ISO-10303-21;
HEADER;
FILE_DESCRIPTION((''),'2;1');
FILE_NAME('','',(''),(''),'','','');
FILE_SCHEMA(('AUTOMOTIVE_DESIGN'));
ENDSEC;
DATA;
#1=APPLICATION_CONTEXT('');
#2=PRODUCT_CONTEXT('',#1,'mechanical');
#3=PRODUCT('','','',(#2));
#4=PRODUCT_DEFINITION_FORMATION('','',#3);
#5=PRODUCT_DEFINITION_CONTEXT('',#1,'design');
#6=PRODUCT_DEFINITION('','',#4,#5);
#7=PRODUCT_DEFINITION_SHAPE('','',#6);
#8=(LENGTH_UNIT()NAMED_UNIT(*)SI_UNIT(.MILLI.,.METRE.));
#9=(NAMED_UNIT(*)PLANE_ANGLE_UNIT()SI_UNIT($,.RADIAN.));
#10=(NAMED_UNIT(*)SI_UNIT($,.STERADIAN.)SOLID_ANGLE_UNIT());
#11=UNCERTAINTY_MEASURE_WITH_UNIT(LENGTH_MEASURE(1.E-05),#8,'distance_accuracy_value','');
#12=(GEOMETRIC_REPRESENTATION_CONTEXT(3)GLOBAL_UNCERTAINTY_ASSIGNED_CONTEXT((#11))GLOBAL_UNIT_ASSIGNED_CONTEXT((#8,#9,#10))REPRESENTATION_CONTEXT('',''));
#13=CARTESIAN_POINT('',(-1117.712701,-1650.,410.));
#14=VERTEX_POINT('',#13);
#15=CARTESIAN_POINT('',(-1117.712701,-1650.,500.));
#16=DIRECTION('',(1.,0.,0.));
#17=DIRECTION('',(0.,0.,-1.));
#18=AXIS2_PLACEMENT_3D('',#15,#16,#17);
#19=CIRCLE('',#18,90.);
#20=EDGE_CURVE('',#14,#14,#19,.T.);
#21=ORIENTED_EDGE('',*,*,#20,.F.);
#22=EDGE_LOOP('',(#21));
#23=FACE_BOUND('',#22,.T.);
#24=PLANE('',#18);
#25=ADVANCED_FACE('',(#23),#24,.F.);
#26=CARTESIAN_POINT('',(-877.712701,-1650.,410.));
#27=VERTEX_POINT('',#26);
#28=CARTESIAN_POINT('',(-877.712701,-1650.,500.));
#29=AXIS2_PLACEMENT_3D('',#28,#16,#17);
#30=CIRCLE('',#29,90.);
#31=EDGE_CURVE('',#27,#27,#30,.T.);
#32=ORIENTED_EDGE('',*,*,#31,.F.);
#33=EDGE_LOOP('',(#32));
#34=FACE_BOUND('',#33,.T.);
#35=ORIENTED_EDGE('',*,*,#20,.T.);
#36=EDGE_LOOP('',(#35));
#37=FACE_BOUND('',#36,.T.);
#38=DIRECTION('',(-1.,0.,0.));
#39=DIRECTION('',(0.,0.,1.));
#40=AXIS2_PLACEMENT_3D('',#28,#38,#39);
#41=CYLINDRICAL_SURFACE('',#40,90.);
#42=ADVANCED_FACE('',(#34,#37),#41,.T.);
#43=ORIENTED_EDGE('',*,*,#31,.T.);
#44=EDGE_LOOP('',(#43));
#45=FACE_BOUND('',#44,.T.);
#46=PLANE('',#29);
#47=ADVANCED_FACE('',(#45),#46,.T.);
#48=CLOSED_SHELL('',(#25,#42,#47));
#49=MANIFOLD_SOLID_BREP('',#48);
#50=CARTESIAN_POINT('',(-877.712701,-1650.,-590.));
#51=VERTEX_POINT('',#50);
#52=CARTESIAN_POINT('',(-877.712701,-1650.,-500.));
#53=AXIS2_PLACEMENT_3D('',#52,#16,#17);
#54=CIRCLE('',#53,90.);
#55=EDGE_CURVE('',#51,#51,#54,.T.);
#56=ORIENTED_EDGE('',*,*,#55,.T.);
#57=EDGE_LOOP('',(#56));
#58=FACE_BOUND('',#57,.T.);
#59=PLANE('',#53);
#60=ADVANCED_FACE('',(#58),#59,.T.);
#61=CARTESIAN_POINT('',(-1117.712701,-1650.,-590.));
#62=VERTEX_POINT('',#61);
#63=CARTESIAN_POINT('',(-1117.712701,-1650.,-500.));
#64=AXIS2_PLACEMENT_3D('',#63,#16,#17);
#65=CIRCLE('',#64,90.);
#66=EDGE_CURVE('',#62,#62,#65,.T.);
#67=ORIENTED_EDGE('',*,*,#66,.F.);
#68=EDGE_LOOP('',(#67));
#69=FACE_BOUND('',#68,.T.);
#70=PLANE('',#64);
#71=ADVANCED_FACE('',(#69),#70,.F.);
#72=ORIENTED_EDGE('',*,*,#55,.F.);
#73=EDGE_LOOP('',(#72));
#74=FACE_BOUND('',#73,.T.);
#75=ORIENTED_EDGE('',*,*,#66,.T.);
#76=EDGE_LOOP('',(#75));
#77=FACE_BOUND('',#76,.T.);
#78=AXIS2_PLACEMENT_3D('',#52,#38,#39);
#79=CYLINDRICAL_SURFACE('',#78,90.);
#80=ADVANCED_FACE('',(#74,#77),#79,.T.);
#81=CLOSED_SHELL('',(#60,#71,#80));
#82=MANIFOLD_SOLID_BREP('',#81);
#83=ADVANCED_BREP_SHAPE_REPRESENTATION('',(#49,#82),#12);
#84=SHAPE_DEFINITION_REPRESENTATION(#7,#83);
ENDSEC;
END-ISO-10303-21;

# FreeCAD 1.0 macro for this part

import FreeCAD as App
import Part
import Sketcher

V = App.Vector
Q = App.Units.Quantity

doc = App.newDocument("Part")
params = doc.addObject("Spreadsheet::Sheet", "Params")
for row, (alias, value) in enumerate([
    ("sketch1_diameter", "180 mm"),
    ("pad1_length", "240 mm"),
    ("sketch2_diameter", "180 mm"),
    ("pad2_length", "240 mm"),
], start=1):
    params.set(f"A{row}", alias)
    params.set(f"B{row}", "=" + value)
    params.setAlias(f"B{row}", alias)

body = doc.addObject("PartDesign::Body", "Body")

# Sketch on YZ plane
sketch1 = doc.addObject("Sketcher::SketchObject", "Sketch")
body.addObject(sketch1)
sketch1.AttachmentSupport = (doc.YZ_Plane, [""])
sketch1.MapMode = "FlatFace"
sketch1.AttachmentOffset = App.Placement(V(0, 0, -1117.712701), App.Rotation())
sketch1.addGeometry(Part.Circle(V(-1650, -500, 0), V(0, 0, 1), 90), False)
sketch1.addConstraint(Sketcher.Constraint("Diameter", 0, Q("180 mm")))
sketch1.addConstraint(Sketcher.Constraint("DistanceX", 0, 3, -1, 1, Q("1650 mm")))
sketch1.addConstraint(Sketcher.Constraint("DistanceY", 0, 3, -1, 1, Q("500 mm")))
sketch1.setExpression("Constraints[0]", "Params.sketch1_diameter")
pad1 = doc.addObject("PartDesign::Pad", "Pad")
body.addObject(pad1)
pad1.Profile = sketch1
pad1.setExpression("Length", "Params.pad1_length")
body2 = doc.addObject("PartDesign::Body", "Body001")

# Sketch on YZ plane
sketch2 = doc.addObject("Sketcher::SketchObject", "Sketch001")
body2.addObject(sketch2)
sketch2.AttachmentSupport = (doc.getObject("YZ_Plane001"), [""])
sketch2.MapMode = "FlatFace"
sketch2.AttachmentOffset = App.Placement(V(0, 0, -1117.712701), App.Rotation())
sketch2.addGeometry(Part.Circle(V(-1650, 500, 0), V(0, 0, 1), 90), False)
sketch2.addConstraint(Sketcher.Constraint("Diameter", 0, Q("180 mm")))
sketch2.addConstraint(Sketcher.Constraint("DistanceX", 0, 3, -1, 1, Q("1650 mm")))
sketch2.addConstraint(Sketcher.Constraint("DistanceY", -1, 1, 0, 3, Q("500 mm")))
sketch2.setExpression("Constraints[0]", "Params.sketch2_diameter")
pad2 = doc.addObject("PartDesign::Pad", "Pad001")
body2.addObject(pad2)
pad2.Profile = sketch2
pad2.setExpression("Length", "Params.pad2_length")

doc.recompute()
